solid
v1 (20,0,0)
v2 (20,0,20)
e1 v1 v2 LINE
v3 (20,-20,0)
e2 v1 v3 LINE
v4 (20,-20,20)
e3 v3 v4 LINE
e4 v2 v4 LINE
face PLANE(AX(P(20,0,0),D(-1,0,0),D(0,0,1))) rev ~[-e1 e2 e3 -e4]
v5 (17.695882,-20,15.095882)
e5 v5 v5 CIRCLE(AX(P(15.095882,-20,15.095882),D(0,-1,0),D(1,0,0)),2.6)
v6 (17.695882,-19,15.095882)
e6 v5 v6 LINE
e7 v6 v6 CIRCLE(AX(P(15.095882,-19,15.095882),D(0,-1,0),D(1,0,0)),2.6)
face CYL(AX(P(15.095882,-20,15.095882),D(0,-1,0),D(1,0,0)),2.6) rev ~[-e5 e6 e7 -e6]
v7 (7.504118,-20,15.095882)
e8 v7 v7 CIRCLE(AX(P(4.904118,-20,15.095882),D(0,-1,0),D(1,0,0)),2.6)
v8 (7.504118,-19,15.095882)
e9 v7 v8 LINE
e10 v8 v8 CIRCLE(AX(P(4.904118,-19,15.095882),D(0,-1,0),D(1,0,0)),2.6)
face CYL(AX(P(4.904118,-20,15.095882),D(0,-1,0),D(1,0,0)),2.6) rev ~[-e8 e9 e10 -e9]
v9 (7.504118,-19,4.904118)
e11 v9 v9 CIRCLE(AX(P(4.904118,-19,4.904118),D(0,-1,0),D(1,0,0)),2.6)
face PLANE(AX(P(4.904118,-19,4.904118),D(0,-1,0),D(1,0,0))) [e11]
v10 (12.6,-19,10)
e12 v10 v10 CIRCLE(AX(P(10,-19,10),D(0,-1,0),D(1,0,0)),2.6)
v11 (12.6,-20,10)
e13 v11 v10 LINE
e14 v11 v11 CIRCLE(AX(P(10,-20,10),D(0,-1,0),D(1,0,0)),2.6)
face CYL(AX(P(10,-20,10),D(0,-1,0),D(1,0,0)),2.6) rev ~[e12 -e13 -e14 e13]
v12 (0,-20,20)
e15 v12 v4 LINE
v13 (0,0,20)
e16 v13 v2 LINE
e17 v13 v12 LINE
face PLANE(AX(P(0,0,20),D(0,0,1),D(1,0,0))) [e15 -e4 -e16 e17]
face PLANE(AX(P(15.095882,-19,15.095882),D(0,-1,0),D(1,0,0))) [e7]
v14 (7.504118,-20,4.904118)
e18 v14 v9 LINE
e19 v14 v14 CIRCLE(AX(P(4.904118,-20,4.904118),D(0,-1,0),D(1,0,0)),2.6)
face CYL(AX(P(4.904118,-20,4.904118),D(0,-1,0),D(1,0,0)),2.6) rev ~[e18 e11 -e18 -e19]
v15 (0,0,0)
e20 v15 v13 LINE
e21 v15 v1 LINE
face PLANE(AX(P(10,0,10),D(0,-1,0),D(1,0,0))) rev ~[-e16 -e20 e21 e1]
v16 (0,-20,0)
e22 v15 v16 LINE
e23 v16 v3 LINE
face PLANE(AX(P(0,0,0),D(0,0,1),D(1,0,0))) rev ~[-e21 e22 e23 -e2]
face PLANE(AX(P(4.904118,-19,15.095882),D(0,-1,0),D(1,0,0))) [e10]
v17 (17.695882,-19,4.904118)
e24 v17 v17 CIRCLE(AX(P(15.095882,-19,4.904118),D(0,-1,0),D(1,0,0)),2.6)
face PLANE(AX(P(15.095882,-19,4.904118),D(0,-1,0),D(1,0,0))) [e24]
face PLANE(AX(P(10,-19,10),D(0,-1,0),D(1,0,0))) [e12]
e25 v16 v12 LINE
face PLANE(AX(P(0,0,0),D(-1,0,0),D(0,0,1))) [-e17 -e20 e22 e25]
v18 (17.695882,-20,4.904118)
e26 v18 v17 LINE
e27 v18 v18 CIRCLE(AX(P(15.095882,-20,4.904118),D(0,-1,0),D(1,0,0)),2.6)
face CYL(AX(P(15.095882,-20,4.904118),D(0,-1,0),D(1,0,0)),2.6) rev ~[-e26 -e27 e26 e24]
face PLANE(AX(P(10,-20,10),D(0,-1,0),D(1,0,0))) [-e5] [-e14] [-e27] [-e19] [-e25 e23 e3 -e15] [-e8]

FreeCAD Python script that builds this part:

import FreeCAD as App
import Part
import Sketcher
Q = App.Units.Quantity


def add_polygon(sketch, points):
    """Adds a closed chain of lines whose ends are joined by coincident constraints."""
    first, n = sketch.GeometryCount, len(points)
    for a, b in zip(points, points[1:] + points[:1]):
        sketch.addGeometry(Part.LineSegment(App.Vector(*a, 0), App.Vector(*b, 0)), False)
    for i in range(n):
        sketch.addConstraint(Sketcher.Constraint("Coincident", first + i, 2, first + (i + 1) % n, 1))

doc = App.newDocument("Part")
body = doc.addObject("PartDesign::Body", "Body")

# Sketch on XZ plane
sketch1 = doc.addObject("Sketcher::SketchObject", "Sketch")
body.addObject(sketch1)
sketch1.AttachmentSupport = (doc.XZ_Plane, [""])
sketch1.MapMode = "FlatFace"
add_polygon(sketch1, [(0, 20), (0, 0), (20, 0), (20, 20)])  # lines 0-3
sketch1.addConstraint([
    Sketcher.Constraint("Vertical", 0),
    Sketcher.Constraint("Horizontal", 1),
    Sketcher.Constraint("Vertical", 2),
    Sketcher.Constraint("Horizontal", 3),
    Sketcher.Constraint("Coincident", 0, 2, -1, 1),
    Sketcher.Constraint("Equal", 3, 0),
    Sketcher.Constraint("DistanceX", 1, 1, 1, 2, Q("20 mm")),
])
pad1 = doc.addObject("PartDesign::Pad", "Pad")
body.addObject(pad1)
pad1.Profile = sketch1
pad1.Length = 20

# Sketch on XZ plane
sketch2 = doc.addObject("Sketcher::SketchObject", "Sketch001")
body.addObject(sketch2)
sketch2.AttachmentSupport = (doc.XZ_Plane, [""])
sketch2.MapMode = "FlatFace"
sketch2.AttachmentOffset = App.Placement(App.Vector(0, 0, 20), App.Rotation())
sketch2.addGeometry([
    Part.Circle(App.Vector(10, 10, 0), App.Vector(0, 0, 1), 2.6),  # 0
    Part.Circle(App.Vector(4.904118, 15.095882, 0), App.Vector(0, 0, 1), 2.6),  # 1
    Part.Circle(App.Vector(15.095882, 15.095882, 0), App.Vector(0, 0, 1), 2.6),  # 2
    Part.Circle(App.Vector(4.904118, 4.904118, 0), App.Vector(0, 0, 1), 2.6),  # 3
    Part.Circle(App.Vector(15.095882, 4.904118, 0), App.Vector(0, 0, 1), 2.6),  # 4
], False)
sketch2.addConstraint([
    Sketcher.Constraint("Equal", 0, 1),
    Sketcher.Constraint("Equal", 1, 2),
    Sketcher.Constraint("Equal", 2, 3),
    Sketcher.Constraint("Equal", 3, 4),
    Sketcher.Constraint("Horizontal", 1, 3, 2, 3),
    Sketcher.Constraint("Horizontal", 3, 3, 4, 3),
    Sketcher.Constraint("Vertical", 1, 3, 3, 3),
    Sketcher.Constraint("Vertical", 2, 3, 4, 3),
    Sketcher.Constraint("Diameter", 0, Q("5.2 mm")),
    Sketcher.Constraint("DistanceX", -1, 1, 0, 3, Q("10 mm")),
    Sketcher.Constraint("DistanceY", -1, 1, 0, 3, Q("10 mm")),
    Sketcher.Constraint("DistanceX", -1, 1, 1, 3, Q("4.904118 mm")),
    Sketcher.Constraint("DistanceY", -1, 1, 3, 3, Q("4.904118 mm")),
    Sketcher.Constraint("DistanceY", 0, 3, 1, 3, Q("5.095882 mm")),
    Sketcher.Constraint("DistanceX", 0, 3, 2, 3, Q("5.095882 mm")),
])
pocket1 = doc.addObject("PartDesign::Pocket", "Pocket")
body.addObject(pocket1)
pocket1.Profile = sketch2
pocket1.Length = 1

doc.recompute()
